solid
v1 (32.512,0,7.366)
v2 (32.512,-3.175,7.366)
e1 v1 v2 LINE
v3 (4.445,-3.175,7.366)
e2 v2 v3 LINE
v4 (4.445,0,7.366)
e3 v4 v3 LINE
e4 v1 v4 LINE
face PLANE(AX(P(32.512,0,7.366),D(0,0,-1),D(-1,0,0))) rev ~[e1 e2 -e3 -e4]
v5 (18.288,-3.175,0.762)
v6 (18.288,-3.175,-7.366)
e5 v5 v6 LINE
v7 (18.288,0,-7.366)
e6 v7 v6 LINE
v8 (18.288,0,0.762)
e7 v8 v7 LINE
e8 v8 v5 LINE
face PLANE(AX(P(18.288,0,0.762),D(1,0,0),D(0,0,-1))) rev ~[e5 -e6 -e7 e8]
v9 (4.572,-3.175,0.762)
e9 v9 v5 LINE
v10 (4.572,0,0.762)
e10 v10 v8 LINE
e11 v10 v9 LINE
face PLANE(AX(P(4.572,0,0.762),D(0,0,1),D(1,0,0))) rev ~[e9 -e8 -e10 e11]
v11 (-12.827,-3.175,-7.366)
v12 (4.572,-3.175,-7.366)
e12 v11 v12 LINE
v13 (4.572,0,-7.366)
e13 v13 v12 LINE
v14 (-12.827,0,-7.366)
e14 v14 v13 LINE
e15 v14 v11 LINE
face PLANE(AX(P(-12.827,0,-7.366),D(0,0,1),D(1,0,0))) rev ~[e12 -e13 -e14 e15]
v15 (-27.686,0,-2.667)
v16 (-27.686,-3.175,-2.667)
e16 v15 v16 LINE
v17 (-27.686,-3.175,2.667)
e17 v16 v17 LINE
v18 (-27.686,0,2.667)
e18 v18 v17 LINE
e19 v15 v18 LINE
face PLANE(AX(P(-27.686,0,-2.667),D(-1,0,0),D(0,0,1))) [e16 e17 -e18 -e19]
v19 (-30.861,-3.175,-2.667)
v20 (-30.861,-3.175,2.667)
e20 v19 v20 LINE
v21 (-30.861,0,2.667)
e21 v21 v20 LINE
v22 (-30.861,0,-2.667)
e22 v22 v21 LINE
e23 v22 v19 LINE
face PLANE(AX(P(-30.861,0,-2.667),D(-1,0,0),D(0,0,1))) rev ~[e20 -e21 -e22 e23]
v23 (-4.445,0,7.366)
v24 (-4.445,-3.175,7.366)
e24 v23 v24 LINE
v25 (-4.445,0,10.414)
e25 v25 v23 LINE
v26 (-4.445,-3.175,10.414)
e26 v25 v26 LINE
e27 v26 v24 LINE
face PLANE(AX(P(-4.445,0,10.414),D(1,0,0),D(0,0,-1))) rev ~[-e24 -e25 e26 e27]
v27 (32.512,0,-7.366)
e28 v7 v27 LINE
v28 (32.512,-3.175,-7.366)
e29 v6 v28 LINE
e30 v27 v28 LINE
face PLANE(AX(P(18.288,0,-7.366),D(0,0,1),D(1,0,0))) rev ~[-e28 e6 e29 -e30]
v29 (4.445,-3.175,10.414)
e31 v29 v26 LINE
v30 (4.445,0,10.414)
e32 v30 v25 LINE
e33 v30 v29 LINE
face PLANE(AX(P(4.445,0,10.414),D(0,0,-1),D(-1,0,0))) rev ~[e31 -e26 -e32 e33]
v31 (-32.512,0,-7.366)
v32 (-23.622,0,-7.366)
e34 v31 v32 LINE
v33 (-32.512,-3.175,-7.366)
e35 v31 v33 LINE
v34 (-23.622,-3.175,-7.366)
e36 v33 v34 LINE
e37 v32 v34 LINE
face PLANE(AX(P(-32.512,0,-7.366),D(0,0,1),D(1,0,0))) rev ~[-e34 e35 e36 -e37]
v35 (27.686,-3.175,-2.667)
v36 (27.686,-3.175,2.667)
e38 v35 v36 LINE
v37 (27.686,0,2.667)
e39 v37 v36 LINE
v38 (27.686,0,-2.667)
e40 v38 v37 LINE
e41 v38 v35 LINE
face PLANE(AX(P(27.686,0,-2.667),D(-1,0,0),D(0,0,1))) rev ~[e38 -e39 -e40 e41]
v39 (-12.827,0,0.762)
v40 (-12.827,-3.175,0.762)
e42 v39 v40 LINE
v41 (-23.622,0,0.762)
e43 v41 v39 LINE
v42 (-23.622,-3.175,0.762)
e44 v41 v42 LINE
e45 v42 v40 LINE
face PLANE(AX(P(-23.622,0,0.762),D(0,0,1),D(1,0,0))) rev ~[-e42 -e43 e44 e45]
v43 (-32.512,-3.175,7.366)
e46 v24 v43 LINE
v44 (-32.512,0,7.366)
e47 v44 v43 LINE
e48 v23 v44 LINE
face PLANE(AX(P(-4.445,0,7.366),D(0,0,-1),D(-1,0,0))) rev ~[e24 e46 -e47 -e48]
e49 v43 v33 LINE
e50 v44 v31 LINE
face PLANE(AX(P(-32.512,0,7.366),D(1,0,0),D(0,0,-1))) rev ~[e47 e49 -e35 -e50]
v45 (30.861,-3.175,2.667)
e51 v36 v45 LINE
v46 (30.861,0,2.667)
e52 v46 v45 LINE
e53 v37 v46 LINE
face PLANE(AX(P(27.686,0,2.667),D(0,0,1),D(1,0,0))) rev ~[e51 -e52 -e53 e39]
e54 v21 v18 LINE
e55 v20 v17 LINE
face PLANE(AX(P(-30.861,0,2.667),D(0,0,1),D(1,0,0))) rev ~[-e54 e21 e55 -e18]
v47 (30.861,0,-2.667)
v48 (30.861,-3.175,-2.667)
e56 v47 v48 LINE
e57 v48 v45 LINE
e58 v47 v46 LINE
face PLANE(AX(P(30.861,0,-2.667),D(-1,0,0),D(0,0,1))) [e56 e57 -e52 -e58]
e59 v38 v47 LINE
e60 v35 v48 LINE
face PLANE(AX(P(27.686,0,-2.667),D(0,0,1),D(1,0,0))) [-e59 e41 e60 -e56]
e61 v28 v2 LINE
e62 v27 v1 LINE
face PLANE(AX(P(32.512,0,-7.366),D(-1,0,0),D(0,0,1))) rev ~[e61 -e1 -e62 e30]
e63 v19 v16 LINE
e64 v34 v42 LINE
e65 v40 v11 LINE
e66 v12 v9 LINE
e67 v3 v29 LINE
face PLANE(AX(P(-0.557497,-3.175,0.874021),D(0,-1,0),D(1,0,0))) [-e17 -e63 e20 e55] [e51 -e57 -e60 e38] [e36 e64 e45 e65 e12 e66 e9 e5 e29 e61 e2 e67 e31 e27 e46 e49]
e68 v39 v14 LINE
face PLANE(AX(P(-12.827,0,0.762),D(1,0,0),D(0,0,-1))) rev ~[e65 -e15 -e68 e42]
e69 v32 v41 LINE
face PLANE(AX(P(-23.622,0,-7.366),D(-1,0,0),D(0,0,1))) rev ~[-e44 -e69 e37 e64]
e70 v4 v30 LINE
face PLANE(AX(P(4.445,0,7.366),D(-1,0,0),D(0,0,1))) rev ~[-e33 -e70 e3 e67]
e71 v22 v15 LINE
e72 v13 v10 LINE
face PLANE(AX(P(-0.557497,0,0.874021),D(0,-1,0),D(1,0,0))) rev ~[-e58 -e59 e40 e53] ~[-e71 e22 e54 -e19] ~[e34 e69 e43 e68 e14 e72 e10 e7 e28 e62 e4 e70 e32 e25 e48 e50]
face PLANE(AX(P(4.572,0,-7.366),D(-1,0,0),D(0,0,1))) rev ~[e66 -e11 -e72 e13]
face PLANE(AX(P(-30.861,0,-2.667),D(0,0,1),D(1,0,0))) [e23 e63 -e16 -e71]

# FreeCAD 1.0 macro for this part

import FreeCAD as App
import Part
import Sketcher
Q = App.Units.Quantity

doc = App.newDocument("Part")
body = doc.addObject("PartDesign::Body", "Body")

sketch1 = doc.addObject("Sketcher::SketchObject", "Sketch")
body.addObject(sketch1)
sketch1.AttachmentSupport = (doc.XZ_Plane, [""])
sketch1.MapMode = "FlatFace"
sketch1.addGeometry([
    Part.LineSegment(App.Vector(-32.5, 7.4, 0), App.Vector(-32.5, -7.4, 0)),
    Part.LineSegment(App.Vector(-32.5, -7.4, 0), App.Vector(-23.6, -7.4, 0)),
    Part.LineSegment(App.Vector(-23.6, -7.4, 0), App.Vector(-23.6, 0.8, 0)),
    Part.LineSegment(App.Vector(-23.6, 0.8, 0), App.Vector(-12.8, 0.8, 0)),
    Part.LineSegment(App.Vector(-12.8, 0.8, 0), App.Vector(-12.8, -7.4, 0)),
    Part.LineSegment(App.Vector(-12.8, -7.4, 0), App.Vector(4.6, -7.4, 0)),
    Part.LineSegment(App.Vector(4.6, -7.4, 0), App.Vector(4.6, 0.8, 0)),
    Part.LineSegment(App.Vector(4.6, 0.8, 0), App.Vector(18.3, 0.8, 0)),
    Part.LineSegment(App.Vector(18.3, 0.8, 0), App.Vector(18.3, -7.4, 0)),
    Part.LineSegment(App.Vector(18.3, -7.4, 0), App.Vector(32.5, -7.4, 0)),
    Part.LineSegment(App.Vector(32.5, -7.4, 0), App.Vector(32.5, 7.4, 0)),
    Part.LineSegment(App.Vector(32.5, 7.4, 0), App.Vector(4.4, 7.4, 0)),
    Part.LineSegment(App.Vector(4.4, 7.4, 0), App.Vector(4.4, 10.4, 0)),
    Part.LineSegment(App.Vector(4.4, 10.4, 0), App.Vector(-4.4, 10.4, 0)),
    Part.LineSegment(App.Vector(-4.4, 10.4, 0), App.Vector(-4.4, 7.4, 0)),
    Part.LineSegment(App.Vector(-4.4, 7.4, 0), App.Vector(-32.5, 7.4, 0)),
    Part.LineSegment(App.Vector(-27.7, -2.7, 0), App.Vector(-30.9, -2.7, 0)),
    Part.LineSegment(App.Vector(-30.9, -2.7, 0), App.Vector(-30.9, 2.7, 0)),
    Part.LineSegment(App.Vector(-30.9, 2.7, 0), App.Vector(-27.7, 2.7, 0)),
    Part.LineSegment(App.Vector(-27.7, 2.7, 0), App.Vector(-27.7, -2.7, 0)),
    Part.LineSegment(App.Vector(30.9, -2.7, 0), App.Vector(27.7, -2.7, 0)),
    Part.LineSegment(App.Vector(27.7, -2.7, 0), App.Vector(27.7, 2.7, 0)),
    Part.LineSegment(App.Vector(27.7, 2.7, 0), App.Vector(30.9, 2.7, 0)),
    Part.LineSegment(App.Vector(30.9, 2.7, 0), App.Vector(30.9, -2.7, 0)),
], False)
sketch1.addConstraint([
    Sketcher.Constraint("Coincident", 0, 2, 1, 1),
    Sketcher.Constraint("Coincident", 1, 2, 2, 1),
    Sketcher.Constraint("Coincident", 2, 2, 3, 1),
    Sketcher.Constraint("Coincident", 3, 2, 4, 1),
    Sketcher.Constraint("Coincident", 4, 2, 5, 1),
    Sketcher.Constraint("Coincident", 5, 2, 6, 1),
    Sketcher.Constraint("Coincident", 6, 2, 7, 1),
    Sketcher.Constraint("Coincident", 7, 2, 8, 1),
    Sketcher.Constraint("Coincident", 8, 2, 9, 1),
    Sketcher.Constraint("Coincident", 9, 2, 10, 1),
    Sketcher.Constraint("Coincident", 10, 2, 11, 1),
    Sketcher.Constraint("Coincident", 11, 2, 12, 1),
    Sketcher.Constraint("Coincident", 12, 2, 13, 1),
    Sketcher.Constraint("Coincident", 13, 2, 14, 1),
    Sketcher.Constraint("Coincident", 14, 2, 15, 1),
    Sketcher.Constraint("Coincident", 15, 2, 0, 1),
    Sketcher.Constraint("Coincident", 16, 2, 17, 1),
    Sketcher.Constraint("Coincident", 17, 2, 18, 1),
    Sketcher.Constraint("Coincident", 18, 2, 19, 1),
    Sketcher.Constraint("Coincident", 19, 2, 16, 1),
    Sketcher.Constraint("Coincident", 20, 2, 21, 1),
    Sketcher.Constraint("Coincident", 21, 2, 22, 1),
    Sketcher.Constraint("Coincident", 22, 2, 23, 1),
    Sketcher.Constraint("Coincident", 23, 2, 20, 1),
    Sketcher.Constraint("Vertical", 0),
    Sketcher.Constraint("Horizontal", 1),
    Sketcher.Constraint("Vertical", 2),
    Sketcher.Constraint("Horizontal", 3),
    Sketcher.Constraint("Vertical", 4),
    Sketcher.Constraint("Horizontal", 5),
    Sketcher.Constraint("Vertical", 6),
    Sketcher.Constraint("Horizontal", 7),
    Sketcher.Constraint("Vertical", 8),
    Sketcher.Constraint("Horizontal", 9),
    Sketcher.Constraint("Vertical", 10),
    Sketcher.Constraint("Horizontal", 11),
    Sketcher.Constraint("Vertical", 12),
    Sketcher.Constraint("Horizontal", 13),
    Sketcher.Constraint("Vertical", 14),
    Sketcher.Constraint("Horizontal", 15),
    Sketcher.Constraint("Horizontal", 16),
    Sketcher.Constraint("Vertical", 17),
    Sketcher.Constraint("Horizontal", 18),
    Sketcher.Constraint("Vertical", 19),
    Sketcher.Constraint("Horizontal", 20),
    Sketcher.Constraint("Vertical", 21),
    Sketcher.Constraint("Horizontal", 22),
    Sketcher.Constraint("Vertical", 23),
    Sketcher.Constraint("Symmetric", 0, 2, 10, 2, -1, 1),
    Sketcher.Constraint("Symmetric", 18, 2, 20, 2, -1, 1),
    Sketcher.Constraint("Symmetric", 16, 2, 22, 2, -1, 1),
    Sketcher.Constraint("Symmetric", 11, 2, 14, 2, -2),
    Sketcher.Constraint("Horizontal", 1, 2, 4, 2),
    Sketcher.Constraint("Horizontal", 3, 2, 6, 2),
    Sketcher.Constraint("Horizontal", 5, 2, 8, 2),
    Sketcher.Constraint("Horizontal", 19, 2, 20, 2),
    Sketcher.Constraint("Equal", 1, 13),
    Sketcher.Constraint("DistanceX", 1, 1, 1, 2, Q("0.35 in")),
    Sketcher.Constraint("DistanceX", 7, 1, 7, 2, Q("0.54 in")),
    Sketcher.Constraint("DistanceX", 9, 1, 9, 2, Q("0.56 in")),
    Sketcher.Constraint("DistanceY", 0, 2, 0, 1, Q("0.58 in")),
    Sketcher.Constraint("DistanceY", 2, 1, 2, 2, Q("0.32 in")),
    Sketcher.Constraint("DistanceY", 12, 1, 12, 2, Q("0.12 in")),
    Sketcher.Constraint("DistanceY", 17, 1, 17, 2, Q("0.21 in")),
    Sketcher.Constraint("DistanceX", 3, 1, 3, 2, Q("0.425 in")),
    Sketcher.Constraint("DistanceX", 5, 1, 5, 2, Q("0.685 in")),
    Sketcher.Constraint("DistanceX", 16, 2, 16, 1, Q("0.125 in")),
    Sketcher.Constraint("DistanceX", 18, 2, -1, 1, Q("1.09 in")),
])
pad1 = doc.addObject("PartDesign::Pad", "Pad")
body.addObject(pad1)
pad1.Profile = sketch1
pad1.Length = Q("0.125 in")

doc.recompute()
